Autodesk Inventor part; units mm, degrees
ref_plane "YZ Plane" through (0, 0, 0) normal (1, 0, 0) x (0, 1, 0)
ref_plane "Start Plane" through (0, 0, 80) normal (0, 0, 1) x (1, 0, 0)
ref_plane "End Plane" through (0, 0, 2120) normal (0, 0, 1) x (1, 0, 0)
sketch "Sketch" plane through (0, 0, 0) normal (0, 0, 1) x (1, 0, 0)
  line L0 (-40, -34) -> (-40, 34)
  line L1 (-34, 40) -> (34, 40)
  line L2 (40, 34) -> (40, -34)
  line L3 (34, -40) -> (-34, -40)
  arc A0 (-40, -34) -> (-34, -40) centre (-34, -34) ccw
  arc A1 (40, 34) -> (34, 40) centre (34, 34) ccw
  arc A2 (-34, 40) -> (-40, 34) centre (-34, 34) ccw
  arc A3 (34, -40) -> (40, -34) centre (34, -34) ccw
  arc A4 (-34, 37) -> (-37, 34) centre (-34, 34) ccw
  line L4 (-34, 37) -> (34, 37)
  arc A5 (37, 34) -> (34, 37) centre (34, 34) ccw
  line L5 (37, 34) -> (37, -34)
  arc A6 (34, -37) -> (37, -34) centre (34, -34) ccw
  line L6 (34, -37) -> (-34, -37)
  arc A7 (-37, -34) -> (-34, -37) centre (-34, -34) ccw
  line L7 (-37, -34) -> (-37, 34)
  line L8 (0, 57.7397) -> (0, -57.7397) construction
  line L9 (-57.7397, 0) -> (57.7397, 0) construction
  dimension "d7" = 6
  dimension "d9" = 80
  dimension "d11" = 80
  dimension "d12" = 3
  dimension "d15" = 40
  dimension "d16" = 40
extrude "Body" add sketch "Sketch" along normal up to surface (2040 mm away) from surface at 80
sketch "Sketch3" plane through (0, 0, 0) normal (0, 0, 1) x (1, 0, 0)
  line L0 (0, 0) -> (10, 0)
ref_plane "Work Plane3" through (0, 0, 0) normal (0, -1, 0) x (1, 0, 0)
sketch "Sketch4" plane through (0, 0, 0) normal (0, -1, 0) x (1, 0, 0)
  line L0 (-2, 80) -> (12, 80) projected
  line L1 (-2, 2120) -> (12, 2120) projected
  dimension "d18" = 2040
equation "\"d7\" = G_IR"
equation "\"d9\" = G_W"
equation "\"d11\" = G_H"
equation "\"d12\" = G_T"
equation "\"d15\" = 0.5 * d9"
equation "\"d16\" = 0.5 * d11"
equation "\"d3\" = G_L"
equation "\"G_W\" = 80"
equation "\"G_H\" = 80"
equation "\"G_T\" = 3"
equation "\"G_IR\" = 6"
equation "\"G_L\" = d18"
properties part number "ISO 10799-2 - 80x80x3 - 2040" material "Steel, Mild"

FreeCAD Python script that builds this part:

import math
import FreeCAD as App
import Part
import Sketcher
from FreeCAD import Vector
Q = App.Units.Quantity

doc = App.newDocument("Part")
body = doc.addObject("PartDesign::Body", "Body")

sketch1 = body.newObject("Sketcher::SketchObject", "Sketch")
sketch1.AttachmentSupport = (doc.getObject("XY_Plane"), [""])
sketch1.MapMode = "FlatFace"
sketch1.AttachmentOffset = App.Placement(Vector(0, 0, 80), App.Rotation())
sketch1.addGeometry([
    Part.LineSegment(Vector(-40, 34, 0), Vector(-40, -34, 0)),
    Part.ArcOfCircle(Part.Circle(Vector(-34, -34, 0), Vector(0, 0, 1), 6), math.radians(180), math.radians(270)),
    Part.LineSegment(Vector(-34, -40, 0), Vector(34, -40, 0)),
    Part.ArcOfCircle(Part.Circle(Vector(34, -34, 0), Vector(0, 0, 1), 6), math.radians(-90), math.radians(0)),
    Part.LineSegment(Vector(40, -34, 0), Vector(40, 34, 0)),
    Part.ArcOfCircle(Part.Circle(Vector(34, 34, 0), Vector(0, 0, 1), 6), math.radians(0), math.radians(90)),
    Part.LineSegment(Vector(34, 40, 0), Vector(-34, 40, 0)),
    Part.ArcOfCircle(Part.Circle(Vector(-34, 34, 0), Vector(0, 0, 1), 6), math.radians(90), math.radians(180)),
    Part.ArcOfCircle(Part.Circle(Vector(-34, 34, 0), Vector(0, 0, 1), 3), math.radians(90), math.radians(180)),
    Part.LineSegment(Vector(-34, 37, 0), Vector(34, 37, 0)),
    Part.ArcOfCircle(Part.Circle(Vector(34, 34, 0), Vector(0, 0, 1), 3), math.radians(0), math.radians(90)),
    Part.LineSegment(Vector(37, 34, 0), Vector(37, -34, 0)),
    Part.ArcOfCircle(Part.Circle(Vector(34, -34, 0), Vector(0, 0, 1), 3), math.radians(-90), math.radians(0)),
    Part.LineSegment(Vector(34, -37, 0), Vector(-34, -37, 0)),
    Part.ArcOfCircle(Part.Circle(Vector(-34, -34, 0), Vector(0, 0, 1), 3), math.radians(180), math.radians(270)),
    Part.LineSegment(Vector(-37, -34, 0), Vector(-37, 34, 0)),
], False)
sketch1.addConstraint([
    Sketcher.Constraint("Tangent", 0, 2, 1, 1),
    Sketcher.Constraint("Tangent", 1, 2, 2, 1),
    Sketcher.Constraint("Tangent", 2, 2, 3, 1),
    Sketcher.Constraint("Tangent", 3, 2, 4, 1),
    Sketcher.Constraint("Tangent", 4, 2, 5, 1),
    Sketcher.Constraint("Tangent", 5, 2, 6, 1),
    Sketcher.Constraint("Tangent", 6, 2, 7, 1),
    Sketcher.Constraint("Tangent", 7, 2, 0, 1),
    Sketcher.Constraint("Tangent", 8, 1, 9, 1),
    Sketcher.Constraint("Tangent", 9, 2, 10, 2),
    Sketcher.Constraint("Tangent", 10, 1, 11, 1),
    Sketcher.Constraint("Tangent", 11, 2, 12, 2),
    Sketcher.Constraint("Tangent", 12, 1, 13, 1),
    Sketcher.Constraint("Tangent", 13, 2, 14, 2),
    Sketcher.Constraint("Tangent", 14, 1, 15, 1),
    Sketcher.Constraint("Tangent", 15, 2, 8, 2),
    Sketcher.Constraint("Vertical", 0),
    Sketcher.Constraint("Horizontal", 2),
    Sketcher.Constraint("Vertical", 4),
    Sketcher.Constraint("Horizontal", 6),
    Sketcher.Constraint("Horizontal", 9),
    Sketcher.Constraint("Vertical", 11),
    Sketcher.Constraint("Horizontal", 13),
    Sketcher.Constraint("Vertical", 15),
    Sketcher.Constraint("Coincident", 8, 3, 7, 3),
    Sketcher.Constraint("Coincident", 10, 3, 5, 3),
    Sketcher.Constraint("Coincident", 12, 3, 3, 3),
    Sketcher.Constraint("Equal", 1, 3),
    Sketcher.Constraint("Equal", 3, 5),
    Sketcher.Constraint("Equal", 5, 7),
    Sketcher.Constraint("Equal", 12, 14),
    Sketcher.Constraint("Symmetric", 1, 3, 5, 3, -1, 1),
    Sketcher.Constraint("Equal", 13, 0),
    Sketcher.Constraint("Radius", 1, Q("6 mm")),
    Sketcher.Constraint("Radius", 8, Q("3 mm")),
    Sketcher.Constraint("DistanceX", 0, 2, -1, 1, Q("40 mm")),
])
pad1 = body.newObject("PartDesign::Pad", "Pad")
pad1.Profile = sketch1
pad1.Length = 2040

doc.recompute()
